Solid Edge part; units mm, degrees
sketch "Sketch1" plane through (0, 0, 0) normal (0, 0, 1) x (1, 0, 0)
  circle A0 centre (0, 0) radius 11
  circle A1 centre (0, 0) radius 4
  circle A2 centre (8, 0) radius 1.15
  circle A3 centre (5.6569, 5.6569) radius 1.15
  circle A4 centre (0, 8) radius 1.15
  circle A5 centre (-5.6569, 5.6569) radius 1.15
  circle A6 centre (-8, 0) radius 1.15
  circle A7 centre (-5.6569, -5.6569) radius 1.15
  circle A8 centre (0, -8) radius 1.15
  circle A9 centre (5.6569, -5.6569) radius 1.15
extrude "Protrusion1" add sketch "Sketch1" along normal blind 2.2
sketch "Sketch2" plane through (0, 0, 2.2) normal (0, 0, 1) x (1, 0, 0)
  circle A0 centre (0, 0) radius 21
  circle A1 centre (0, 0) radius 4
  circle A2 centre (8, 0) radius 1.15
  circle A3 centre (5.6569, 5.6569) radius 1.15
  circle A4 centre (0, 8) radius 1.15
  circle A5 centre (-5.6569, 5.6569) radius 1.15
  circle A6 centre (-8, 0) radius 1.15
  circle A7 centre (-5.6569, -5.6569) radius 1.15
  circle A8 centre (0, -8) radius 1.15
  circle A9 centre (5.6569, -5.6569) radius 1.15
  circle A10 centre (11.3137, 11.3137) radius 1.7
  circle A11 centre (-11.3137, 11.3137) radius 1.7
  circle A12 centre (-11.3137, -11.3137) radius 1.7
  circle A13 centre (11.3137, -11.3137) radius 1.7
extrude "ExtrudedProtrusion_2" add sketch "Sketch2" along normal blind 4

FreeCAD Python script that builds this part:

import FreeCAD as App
import Part
import Sketcher

doc = App.newDocument("Part")
body = doc.addObject("PartDesign::Body", "Body")

# Sketch on XY plane
sketch1 = doc.addObject("Sketcher::SketchObject", "Sketch")
body.addObject(sketch1)
sketch1.AttachmentSupport = (doc.XY_Plane, [""])
sketch1.MapMode = "FlatFace"
sketch1.addGeometry(Part.Circle(App.Vector(0, 0, 0), App.Vector(0, 0, 1), 11), False)
sketch1.addGeometry(Part.Circle(App.Vector(-5.7, -5.7, 0), App.Vector(0, 0, 1), 1.1), False)
sketch1.addGeometry(Part.Circle(App.Vector(0, -8, 0), App.Vector(0, 0, 1), 1.1), False)
sketch1.addGeometry(Part.Circle(App.Vector(5.7, -5.7, 0), App.Vector(0, 0, 1), 1.1), False)
sketch1.addGeometry(Part.Circle(App.Vector(-8, 0, 0), App.Vector(0, 0, 1), 1.1), False)
sketch1.addGeometry(Part.Circle(App.Vector(-5.7, 5.7, 0), App.Vector(0, 0, 1), 1.1), False)
sketch1.addGeometry(Part.Circle(App.Vector(0, 0, 0), App.Vector(0, 0, 1), 4), False)
sketch1.addGeometry(Part.Circle(App.Vector(8, 0, 0), App.Vector(0, 0, 1), 1.1), False)
sketch1.addGeometry(Part.Circle(App.Vector(0, 8, 0), App.Vector(0, 0, 1), 1.1), False)
sketch1.addGeometry(Part.Circle(App.Vector(5.7, 5.7, 0), App.Vector(0, 0, 1), 1.1), False)
sketch1.addConstraint(Sketcher.Constraint("Coincident", 0, 3, -1, 1))
sketch1.addConstraint(Sketcher.Constraint("Coincident", 6, 3, -1, 1))
sketch1.addConstraint(Sketcher.Constraint("Equal", 1, 2))
sketch1.addConstraint(Sketcher.Constraint("Equal", 2, 3))
sketch1.addConstraint(Sketcher.Constraint("Equal", 3, 4))
sketch1.addConstraint(Sketcher.Constraint("Equal", 4, 5))
sketch1.addConstraint(Sketcher.Constraint("Equal", 5, 7))
sketch1.addConstraint(Sketcher.Constraint("Equal", 7, 8))
sketch1.addConstraint(Sketcher.Constraint("Equal", 8, 9))
sketch1.addConstraint(Sketcher.Constraint("Symmetric", 3, 3, 5, 3, -1, 1))
sketch1.addConstraint(Sketcher.Constraint("Symmetric", 4, 3, 7, 3, -1, 1))
sketch1.addConstraint(Sketcher.Constraint("Symmetric", 2, 3, 8, 3, -1, 1))
sketch1.addConstraint(Sketcher.Constraint("Symmetric", 1, 3, 9, 3, -1, 1))
sketch1.addConstraint(Sketcher.Constraint("Symmetric", 1, 3, 3, 3, -2))
sketch1.addConstraint(Sketcher.Constraint("PointOnObject", 2, 3, -2))
sketch1.addConstraint(Sketcher.Constraint("PointOnObject", 4, 3, -1))
sketch1.addConstraint(Sketcher.Constraint("Diameter", 0, 22.0))
sketch1.addConstraint(Sketcher.Constraint("Diameter", 6, 8.0))
sketch1.addConstraint(Sketcher.Constraint("Diameter", 1, 2.3))
sketch1.addConstraint(Sketcher.Constraint("DistanceY", 2, 3, -1, 1, 8.0))
sketch1.addConstraint(Sketcher.Constraint("DistanceX", 4, 3, -1, 1, 8.0))
sketch1.addConstraint(Sketcher.Constraint("DistanceX", 1, 3, -1, 1, 5.657))
sketch1.addConstraint(Sketcher.Constraint("DistanceY", 1, 3, -1, 1, 5.657))
pad1 = doc.addObject("PartDesign::Pad", "Pad")
body.addObject(pad1)
pad1.Profile = sketch1
pad1.Length = 2.2

# Sketch on XY plane
sketch2 = doc.addObject("Sketcher::SketchObject", "Sketch001")
body.addObject(sketch2)
sketch2.AttachmentSupport = (doc.XY_Plane, [""])
sketch2.MapMode = "FlatFace"
sketch2.AttachmentOffset = App.Placement(App.Vector(0, 0, 2.2), App.Rotation())
sketch2.addGeometry(Part.Circle(App.Vector(0, 0, 0), App.Vector(0, 0, 1), 21), False)
sketch2.addGeometry(Part.Circle(App.Vector(-11.3, -11.3, 0), App.Vector(0, 0, 1), 1.7), False)
sketch2.addGeometry(Part.Circle(App.Vector(-5.7, -5.7, 0), App.Vector(0, 0, 1), 1.1), False)
sketch2.addGeometry(Part.Circle(App.Vector(11.3, -11.3, 0), App.Vector(0, 0, 1), 1.7), False)
sketch2.addGeometry(Part.Circle(App.Vector(0, -8, 0), App.Vector(0, 0, 1), 1.1), False)
sketch2.addGeometry(Part.Circle(App.Vector(5.7, -5.7, 0), App.Vector(0, 0, 1), 1.1), False)
sketch2.addGeometry(Part.Circle(App.Vector(-8, 0, 0), App.Vector(0, 0, 1), 1.1), False)
sketch2.addGeometry(Part.Circle(App.Vector(-5.7, 5.7, 0), App.Vector(0, 0, 1), 1.1), False)
sketch2.addGeometry(Part.Circle(App.Vector(-11.3, 11.3, 0), App.Vector(0, 0, 1), 1.7), False)
sketch2.addGeometry(Part.Circle(App.Vector(0, 0, 0), App.Vector(0, 0, 1), 4), False)
sketch2.addGeometry(Part.Circle(App.Vector(8, 0, 0), App.Vector(0, 0, 1), 1.1), False)
sketch2.addGeometry(Part.Circle(App.Vector(0, 8, 0), App.Vector(0, 0, 1), 1.1), False)
sketch2.addGeometry(Part.Circle(App.Vector(5.7, 5.7, 0), App.Vector(0, 0, 1), 1.1), False)
sketch2.addGeometry(Part.Circle(App.Vector(11.3, 11.3, 0), App.Vector(0, 0, 1), 1.7), False)
sketch2.addConstraint(Sketcher.Constraint("Coincident", 0, 3, -1, 1))
sketch2.addConstraint(Sketcher.Constraint("Coincident", 9, 3, -1, 1))
sketch2.addConstraint(Sketcher.Constraint("Equal", 1, 3))
sketch2.addConstraint(Sketcher.Constraint("Equal", 2, 4))
sketch2.addConstraint(Sketcher.Constraint("Equal", 4, 5))
sketch2.addConstraint(Sketcher.Constraint("Equal", 5, 6))
sketch2.addConstraint(Sketcher.Constraint("Equal", 6, 7))
sketch2.addConstraint(Sketcher.Constraint("Equal", 3, 8))
sketch2.addConstraint(Sketcher.Constraint("Equal", 7, 10))
sketch2.addConstraint(Sketcher.Constraint("Equal", 10, 11))
sketch2.addConstraint(Sketcher.Constraint("Equal", 11, 12))
sketch2.addConstraint(Sketcher.Constraint("Equal", 8, 13))
sketch2.addConstraint(Sketcher.Constraint("Symmetric", 5, 3, 7, 3, -1, 1))
sketch2.addConstraint(Sketcher.Constraint("Symmetric", 3, 3, 8, 3, -1, 1))
sketch2.addConstraint(Sketcher.Constraint("Symmetric", 6, 3, 10, 3, -1, 1))
sketch2.addConstraint(Sketcher.Constraint("Symmetric", 4, 3, 11, 3, -1, 1))
sketch2.addConstraint(Sketcher.Constraint("Symmetric", 2, 3, 12, 3, -1, 1))
sketch2.addConstraint(Sketcher.Constraint("Symmetric", 1, 3, 13, 3, -1, 1))
sketch2.addConstraint(Sketcher.Constraint("Symmetric", 1, 3, 3, 3, -2))
sketch2.addConstraint(Sketcher.Constraint("Symmetric", 2, 3, 5, 3, -2))
sketch2.addConstraint(Sketcher.Constraint("PointOnObject", 4, 3, -2))
sketch2.addConstraint(Sketcher.Constraint("PointOnObject", 6, 3, -1))
sketch2.addConstraint(Sketcher.Constraint("Diameter", 0, 42.0))
sketch2.addConstraint(Sketcher.Constraint("Diameter", 9, 8.0))
sketch2.addConstraint(Sketcher.Constraint("Diameter", 1, 3.4))
sketch2.addConstraint(Sketcher.Constraint("Diameter", 2, 2.3))
sketch2.addConstraint(Sketcher.Constraint("DistanceY", 4, 3, -1, 1, 8.0))
sketch2.addConstraint(Sketcher.Constraint("DistanceX", 6, 3, -1, 1, 8.0))
sketch2.addConstraint(Sketcher.Constraint("DistanceX", 2, 3, -1, 1, 5.657))
sketch2.addConstraint(Sketcher.Constraint("DistanceY", 2, 3, -1, 1, 5.657))
sketch2.addConstraint(Sketcher.Constraint("DistanceX", 1, 3, -1, 1, 11.3137))
sketch2.addConstraint(Sketcher.Constraint("DistanceY", 1, 3, -1, 1, 11.3137))
pad2 = doc.addObject("PartDesign::Pad", "Pad001")
body.addObject(pad2)
pad2.Profile = sketch2
pad2.Length = 4

doc.recompute()
